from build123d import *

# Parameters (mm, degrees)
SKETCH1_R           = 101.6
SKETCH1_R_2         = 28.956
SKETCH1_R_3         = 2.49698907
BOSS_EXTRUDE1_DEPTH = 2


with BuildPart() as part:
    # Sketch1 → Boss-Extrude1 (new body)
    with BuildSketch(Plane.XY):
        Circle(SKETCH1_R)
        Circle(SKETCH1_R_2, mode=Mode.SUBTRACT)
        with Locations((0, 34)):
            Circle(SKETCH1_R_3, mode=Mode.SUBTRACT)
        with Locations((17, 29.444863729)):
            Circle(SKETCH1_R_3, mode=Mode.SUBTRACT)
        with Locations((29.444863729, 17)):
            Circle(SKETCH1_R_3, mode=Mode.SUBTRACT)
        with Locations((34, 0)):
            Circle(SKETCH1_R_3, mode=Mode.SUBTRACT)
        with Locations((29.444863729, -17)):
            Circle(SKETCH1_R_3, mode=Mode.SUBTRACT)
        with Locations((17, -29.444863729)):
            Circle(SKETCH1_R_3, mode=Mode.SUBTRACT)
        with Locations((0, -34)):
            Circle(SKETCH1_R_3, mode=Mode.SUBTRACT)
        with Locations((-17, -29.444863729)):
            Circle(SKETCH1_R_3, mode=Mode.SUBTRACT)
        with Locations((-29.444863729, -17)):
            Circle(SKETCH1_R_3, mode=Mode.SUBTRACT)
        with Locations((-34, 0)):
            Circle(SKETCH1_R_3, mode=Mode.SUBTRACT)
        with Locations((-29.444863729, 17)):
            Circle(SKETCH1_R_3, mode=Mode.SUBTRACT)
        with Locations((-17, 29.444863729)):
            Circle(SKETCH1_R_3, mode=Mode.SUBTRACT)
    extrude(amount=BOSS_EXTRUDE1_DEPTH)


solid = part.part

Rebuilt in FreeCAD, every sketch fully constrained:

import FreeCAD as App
import Part
import Sketcher
Q = App.Units.Quantity

doc = App.newDocument("Part")
body = doc.addObject("PartDesign::Body", "Body")

# Sketch on XY plane
sketch1 = doc.addObject("Sketcher::SketchObject", "Sketch")
body.addObject(sketch1)
sketch1.AttachmentSupport = (doc.XY_Plane, [""])
sketch1.MapMode = "FlatFace"
sketch1.addGeometry(Part.Circle(App.Vector(0, 0, 0), App.Vector(0, 0, 1), 101.6), False)
sketch1.addGeometry(Part.Circle(App.Vector(-17, -29.4, 0), App.Vector(0, 0, 1), 2.5), False)
sketch1.addGeometry(Part.Circle(App.Vector(-29.4, -17, 0), App.Vector(0, 0, 1), 2.5), False)
sketch1.addGeometry(Part.Circle(App.Vector(0, -34, 0), App.Vector(0, 0, 1), 2.5), False)
sketch1.addGeometry(Part.Circle(App.Vector(17, -29.4, 0), App.Vector(0, 0, 1), 2.5), False)
sketch1.addGeometry(Part.Circle(App.Vector(29.4, -17, 0), App.Vector(0, 0, 1), 2.5), False)
sketch1.addGeometry(Part.Circle(App.Vector(-34, 0, 0), App.Vector(0, 0, 1), 2.5), False)
sketch1.addGeometry(Part.Circle(App.Vector(-29.4, 17, 0), App.Vector(0, 0, 1), 2.5), False)
sketch1.addGeometry(Part.Circle(App.Vector(-17, 29.4, 0), App.Vector(0, 0, 1), 2.5), False)
sketch1.addGeometry(Part.Circle(App.Vector(0, 0, 0), App.Vector(0, 0, 1), 29), False)
sketch1.addGeometry(Part.Circle(App.Vector(34, 0, 0), App.Vector(0, 0, 1), 2.5), False)
sketch1.addGeometry(Part.Circle(App.Vector(29.4, 17, 0), App.Vector(0, 0, 1), 2.5), False)
sketch1.addGeometry(Part.Circle(App.Vector(0, 34, 0), App.Vector(0, 0, 1), 2.5), False)
sketch1.addGeometry(Part.Circle(App.Vector(17, 29.4, 0), App.Vector(0, 0, 1), 2.5), False)
sketch1.addConstraint(Sketcher.Constraint("Coincident", 0, 3, -1, 1))
sketch1.addConstraint(Sketcher.Constraint("Coincident", 9, 3, -1, 1))
sketch1.addConstraint(Sketcher.Constraint("Equal", 1, 2))
sketch1.addConstraint(Sketcher.Constraint("Equal", 2, 3))
sketch1.addConstraint(Sketcher.Constraint("Equal", 3, 4))
sketch1.addConstraint(Sketcher.Constraint("Equal", 4, 5))
sketch1.addConstraint(Sketcher.Constraint("Equal", 5, 6))
sketch1.addConstraint(Sketcher.Constraint("Equal", 6, 7))
sketch1.addConstraint(Sketcher.Constraint("Equal", 7, 8))
sketch1.addConstraint(Sketcher.Constraint("Equal", 8, 10))
sketch1.addConstraint(Sketcher.Constraint("Equal", 10, 11))
sketch1.addConstraint(Sketcher.Constraint("Equal", 11, 12))
sketch1.addConstraint(Sketcher.Constraint("Equal", 12, 13))
sketch1.addConstraint(Sketcher.Constraint("Symmetric", 5, 3, 7, 3, -1, 1))
sketch1.addConstraint(Sketcher.Constraint("Symmetric", 4, 3, 8, 3, -1, 1))
sketch1.addConstraint(Sketcher.Constraint("Symmetric", 6, 3, 10, 3, -1, 1))
sketch1.addConstraint(Sketcher.Constraint("Symmetric", 2, 3, 11, 3, -1, 1))
sketch1.addConstraint(Sketcher.Constraint("Symmetric", 3, 3, 12, 3, -1, 1))
sketch1.addConstraint(Sketcher.Constraint("Symmetric", 1, 3, 13, 3, -1, 1))
sketch1.addConstraint(Sketcher.Constraint("Symmetric", 1, 3, 4, 3, -2))
sketch1.addConstraint(Sketcher.Constraint("Symmetric", 2, 3, 5, 3, -2))
sketch1.addConstraint(Sketcher.Constraint("PointOnObject", 3, 3, -2))
sketch1.addConstraint(Sketcher.Constraint("PointOnObject", 6, 3, -1))
sketch1.addConstraint(Sketcher.Constraint("Diameter", 0, Q("8 in")))
sketch1.addConstraint(Sketcher.Constraint("Diameter", 9, Q("2.28 in")))
sketch1.addConstraint(Sketcher.Constraint("Diameter", 1, 4.993978))
sketch1.addConstraint(Sketcher.Constraint("DistanceX", 1, 3, -1, 1, 17.0))
sketch1.addConstraint(Sketcher.Constraint("DistanceY", 2, 3, -1, 1, 17.0))
sketch1.addConstraint(Sketcher.Constraint("DistanceY", 3, 3, -1, 1, 34.0))
sketch1.addConstraint(Sketcher.Constraint("DistanceX", 6, 3, -1, 1, 34.0))
sketch1.addConstraint(Sketcher.Constraint("DistanceY", 1, 3, -1, 1, 29.444864))
sketch1.addConstraint(Sketcher.Constraint("DistanceX", 2, 3, -1, 1, 29.444864))
pad1 = doc.addObject("PartDesign::Pad", "Pad")
body.addObject(pad1)
pad1.Profile = sketch1
pad1.Length = 2

doc.recompute()
